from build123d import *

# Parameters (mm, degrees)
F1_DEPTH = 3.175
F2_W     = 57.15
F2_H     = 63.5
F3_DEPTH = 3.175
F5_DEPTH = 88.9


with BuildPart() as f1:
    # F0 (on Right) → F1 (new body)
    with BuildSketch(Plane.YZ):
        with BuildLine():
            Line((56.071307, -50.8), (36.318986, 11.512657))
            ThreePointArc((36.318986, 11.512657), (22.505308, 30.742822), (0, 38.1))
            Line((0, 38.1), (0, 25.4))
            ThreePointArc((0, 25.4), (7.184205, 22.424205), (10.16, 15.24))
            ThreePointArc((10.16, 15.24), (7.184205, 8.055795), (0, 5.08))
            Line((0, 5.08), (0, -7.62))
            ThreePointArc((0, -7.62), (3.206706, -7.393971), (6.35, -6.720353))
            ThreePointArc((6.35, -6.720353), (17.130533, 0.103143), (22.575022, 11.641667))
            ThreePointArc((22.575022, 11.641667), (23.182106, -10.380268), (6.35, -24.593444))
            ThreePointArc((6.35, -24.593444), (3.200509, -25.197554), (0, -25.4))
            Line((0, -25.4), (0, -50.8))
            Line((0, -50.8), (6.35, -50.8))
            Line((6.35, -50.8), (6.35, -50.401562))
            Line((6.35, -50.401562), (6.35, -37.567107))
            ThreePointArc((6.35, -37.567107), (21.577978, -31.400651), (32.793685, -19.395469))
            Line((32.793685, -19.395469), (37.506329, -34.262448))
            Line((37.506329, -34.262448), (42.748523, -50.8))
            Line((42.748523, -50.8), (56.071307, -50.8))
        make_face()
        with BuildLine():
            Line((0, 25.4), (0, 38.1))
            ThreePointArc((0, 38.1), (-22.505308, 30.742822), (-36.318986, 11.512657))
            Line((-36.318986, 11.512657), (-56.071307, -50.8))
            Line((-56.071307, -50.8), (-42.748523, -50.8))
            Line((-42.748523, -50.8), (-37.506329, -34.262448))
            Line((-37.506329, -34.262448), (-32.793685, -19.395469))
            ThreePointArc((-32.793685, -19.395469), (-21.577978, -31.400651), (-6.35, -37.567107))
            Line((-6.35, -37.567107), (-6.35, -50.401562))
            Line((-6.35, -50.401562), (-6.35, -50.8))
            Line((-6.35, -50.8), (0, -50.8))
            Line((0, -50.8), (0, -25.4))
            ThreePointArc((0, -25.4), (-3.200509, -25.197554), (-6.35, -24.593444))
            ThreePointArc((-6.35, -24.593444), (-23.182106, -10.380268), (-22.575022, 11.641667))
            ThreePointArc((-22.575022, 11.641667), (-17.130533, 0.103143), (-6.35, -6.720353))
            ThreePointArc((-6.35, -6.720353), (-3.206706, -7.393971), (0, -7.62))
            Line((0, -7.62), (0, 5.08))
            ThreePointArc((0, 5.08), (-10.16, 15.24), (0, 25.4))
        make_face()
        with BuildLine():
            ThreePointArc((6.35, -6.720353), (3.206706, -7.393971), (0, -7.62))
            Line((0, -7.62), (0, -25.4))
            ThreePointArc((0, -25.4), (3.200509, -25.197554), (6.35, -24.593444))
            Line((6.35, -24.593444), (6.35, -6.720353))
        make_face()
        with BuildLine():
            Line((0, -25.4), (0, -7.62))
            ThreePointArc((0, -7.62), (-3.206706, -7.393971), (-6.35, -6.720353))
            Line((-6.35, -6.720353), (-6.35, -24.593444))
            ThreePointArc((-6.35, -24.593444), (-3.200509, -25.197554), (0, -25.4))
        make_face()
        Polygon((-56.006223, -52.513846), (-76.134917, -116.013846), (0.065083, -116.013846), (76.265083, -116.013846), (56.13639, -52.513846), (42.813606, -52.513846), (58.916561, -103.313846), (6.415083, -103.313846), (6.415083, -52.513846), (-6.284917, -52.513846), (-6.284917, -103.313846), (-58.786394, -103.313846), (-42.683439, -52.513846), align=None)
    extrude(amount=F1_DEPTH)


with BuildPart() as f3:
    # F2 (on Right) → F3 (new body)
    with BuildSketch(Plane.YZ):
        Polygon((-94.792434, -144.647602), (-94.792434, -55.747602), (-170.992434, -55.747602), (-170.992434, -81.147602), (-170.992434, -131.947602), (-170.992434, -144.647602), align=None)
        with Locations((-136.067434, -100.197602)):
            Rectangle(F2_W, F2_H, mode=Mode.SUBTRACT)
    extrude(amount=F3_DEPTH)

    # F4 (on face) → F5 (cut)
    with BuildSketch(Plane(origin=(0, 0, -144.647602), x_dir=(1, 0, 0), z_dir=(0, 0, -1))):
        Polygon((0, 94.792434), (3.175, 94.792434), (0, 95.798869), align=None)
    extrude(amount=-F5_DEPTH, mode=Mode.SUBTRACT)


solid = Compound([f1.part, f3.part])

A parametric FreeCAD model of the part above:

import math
import FreeCAD as App
import Part
import Sketcher
from FreeCAD import Vector
Q = App.Units.Quantity


def add_polygon(sketch, points):
    """Adds a closed chain of lines whose ends are joined by coincident constraints."""
    first, n = sketch.GeometryCount, len(points)
    for a, b in zip(points, points[1:] + points[:1]):
        sketch.addGeometry(Part.LineSegment(App.Vector(*a, 0), App.Vector(*b, 0)), False)
    for i in range(n):
        sketch.addConstraint(Sketcher.Constraint("Coincident", first + i, 2, first + (i + 1) % n, 1))

doc = App.newDocument("Part")
body = doc.addObject("PartDesign::Body", "Body")
body.AllowCompound = True

# Sketch on YZ plane
sketch1 = body.newObject("Sketcher::SketchObject", "Sketch")
sketch1.AttachmentSupport = (doc.getObject("YZ_Plane"), [""])
sketch1.MapMode = "FlatFace"
sketch1.addGeometry(Part.LineSegment(Vector(56, -51, 0), Vector(36, 12, 0)), False)  # 0
sketch1.addGeometry(Part.ArcOfCircle(Part.Circle(Vector(0, 0, 0), Vector(0, 0, 1), 38), math.radians(18), math.radians(90)), False)  # 1
sketch1.addGeometry(Part.ArcOfCircle(Part.Circle(Vector(0, 0, 0), Vector(0, 0, 1), 38), math.radians(90), math.radians(162)), False)  # 2
sketch1.addGeometry(Part.LineSegment(Vector(-36, 12, 0), Vector(-56, -51, 0)), False)  # 3
sketch1.addGeometry(Part.LineSegment(Vector(-56, -51, 0), Vector(-43, -51, 0)), False)  # 4
sketch1.addGeometry(Part.LineSegment(Vector(-43, -51, 0), Vector(-38, -34, 0)), False)  # 5
sketch1.addGeometry(Part.LineSegment(Vector(-38, -34, 0), Vector(-33, -19, 0)), False)  # 6
sketch1.addGeometry(Part.ArcOfCircle(Part.Circle(Vector(0, 0, 0), Vector(0, 0, 1), 38), math.radians(-149), math.radians(-100)), False)  # 7
sketch1.addGeometry(Part.LineSegment(Vector(-6, -38, 0), Vector(-6, -51, 0)), False)  # 8
sketch1.addGeometry(Part.LineSegment(Vector(-6, -51, 0), Vector(6, -51, 0)), False)  # 9
sketch1.addGeometry(Part.LineSegment(Vector(6, -51, 0), Vector(6, -38, 0)), False)  # 10
sketch1.addGeometry(Part.ArcOfCircle(Part.Circle(Vector(0, 0, 0), Vector(0, 0, 1), 38), math.radians(-80), math.radians(-31)), False)  # 11
sketch1.addGeometry(Part.LineSegment(Vector(33, -19, 0), Vector(38, -34, 0)), False)  # 12
sketch1.addGeometry(Part.LineSegment(Vector(38, -34, 0), Vector(43, -51, 0)), False)  # 13
sketch1.addGeometry(Part.LineSegment(Vector(43, -51, 0), Vector(56, -51, 0)), False)  # 14
sketch1.addGeometry(Part.ArcOfCircle(Part.Circle(Vector(0, 15, 0), Vector(0, 0, 1), 10), math.radians(0), math.radians(90)), False)  # 15
sketch1.addGeometry(Part.ArcOfCircle(Part.Circle(Vector(0, 15, 0), Vector(0, 0, 1), 10), math.radians(-90), math.radians(0)), False)  # 16
sketch1.addGeometry(Part.ArcOfCircle(Part.Circle(Vector(0, 15, 0), Vector(0, 0, 1), 10), math.radians(90), math.radians(270)), False)  # 17
sketch1.addGeometry(Part.ArcOfCircle(Part.Circle(Vector(0, 15, 0), Vector(0, 0, 1), 23), math.radians(-74), math.radians(-9)), False)  # 18
sketch1.addGeometry(Part.ArcOfCircle(Part.Circle(Vector(0, 0, 0), Vector(0, 0, 1), 25), math.radians(-76), math.radians(27)), False)  # 19
sketch1.addGeometry(Part.LineSegment(Vector(6, -25, 0), Vector(6, -7, 0)), False)  # 20
sketch1.addGeometry(Part.ArcOfCircle(Part.Circle(Vector(0, 0, 0), Vector(0, 0, 1), 25), math.radians(153), math.radians(256)), False)  # 21
sketch1.addGeometry(Part.ArcOfCircle(Part.Circle(Vector(0, 15, 0), Vector(0, 0, 1), 23), math.radians(-171), math.radians(-106)), False)  # 22
sketch1.addGeometry(Part.LineSegment(Vector(-6, -7, 0), Vector(-6, -25, 0)), False)  # 23
add_polygon(sketch1, [(-56, -53), (-76, -116), (76, -116), (56, -53), (43, -53), (59, -103), (6, -103), (6, -53), (-6, -53), (-6, -103), (-59, -103), (-43, -53)])  # lines 24-35
sketch1.addConstraint([
    Sketcher.Constraint("Tangent", 0, 2, 1, 1),
    Sketcher.Constraint("Tangent", 1, 2, 2, 1),
    Sketcher.Constraint("Tangent", 2, 2, 3, 1),
    Sketcher.Constraint("Coincident", 3, 2, 4, 1),
    Sketcher.Constraint("Coincident", 4, 2, 5, 1),
    Sketcher.Constraint("Coincident", 5, 2, 6, 1),
    Sketcher.Constraint("Coincident", 6, 2, 7, 1),
    Sketcher.Constraint("Coincident", 7, 2, 8, 1),
    Sketcher.Constraint("Coincident", 8, 2, 9, 1),
    Sketcher.Constraint("Coincident", 9, 2, 10, 1),
    Sketcher.Constraint("Coincident", 10, 2, 11, 1),
    Sketcher.Constraint("Coincident", 11, 2, 12, 1),
    Sketcher.Constraint("Coincident", 12, 2, 13, 1),
    Sketcher.Constraint("Coincident", 13, 2, 14, 1),
    Sketcher.Constraint("Coincident", 14, 2, 0, 1),
    Sketcher.Constraint("Tangent", 15, 1, 16, 2),
    Sketcher.Constraint("Tangent", 16, 1, 17, 2),
    Sketcher.Constraint("Tangent", 17, 1, 15, 2),
    Sketcher.Constraint("Coincident", 18, 2, 19, 2),
    Sketcher.Constraint("Coincident", 19, 1, 20, 1),
    Sketcher.Constraint("Coincident", 20, 2, 18, 1),
    Sketcher.Constraint("Coincident", 21, 1, 22, 1),
    Sketcher.Constraint("Coincident", 22, 2, 23, 1),
    Sketcher.Constraint("Coincident", 23, 2, 21, 2),
    Sketcher.Constraint("Horizontal", 4),
    Sketcher.Constraint("Vertical", 8),
    Sketcher.Constraint("Horizontal", 9),
    Sketcher.Constraint("Vertical", 10),
    Sketcher.Constraint("Horizontal", 14),
    Sketcher.Constraint("Vertical", 20),
    Sketcher.Constraint("Vertical", 23),
    Sketcher.Constraint("Horizontal", 25),
    Sketcher.Constraint("Horizontal", 27),
    Sketcher.Constraint("Horizontal", 29),
    Sketcher.Constraint("Vertical", 30),
    Sketcher.Constraint("Horizontal", 31),
    Sketcher.Constraint("Vertical", 32),
    Sketcher.Constraint("Horizontal", 33),
    Sketcher.Constraint("Horizontal", 35),
    Sketcher.Constraint("Coincident", 1, 3, -1, 1),
    Sketcher.Constraint("Coincident", 7, 3, -1, 1),
    Sketcher.Constraint("Coincident", 11, 3, -1, 1),
    Sketcher.Constraint("Coincident", 19, 3, -1, 1),
    Sketcher.Constraint("Coincident", 21, 3, -1, 1),
    Sketcher.Constraint("Coincident", 18, 3, 15, 3),
    Sketcher.Constraint("Coincident", 22, 3, 15, 3),
    Sketcher.Constraint("Equal", 1, 2),
    Sketcher.Constraint("Equal", 2, 7),
    Sketcher.Constraint("Equal", 7, 11),
    Sketcher.Constraint("Equal", 19, 21),
    Sketcher.Constraint("Equal", 18, 22),
    Sketcher.Constraint("Symmetric", 5, 2, 12, 2, -2),
    Sketcher.Constraint("Symmetric", 4, 2, 13, 2, -2),
    Sketcher.Constraint("Symmetric", 20, 2, 22, 2, -2),
    Sketcher.Constraint("PointOnObject", 1, 2, -2),
    Sketcher.Constraint("PointOnObject", 16, 1, -2),
    Sketcher.Constraint("PointOnObject", 17, 1, -2),
    Sketcher.Constraint("Parallel", 3, 5),
    Sketcher.Constraint("Parallel", 5, 6),
    Sketcher.Constraint("Parallel", 0, 12),
    Sketcher.Constraint("Parallel", 12, 13),
    Sketcher.Constraint("Parallel", 6, 24),
    Sketcher.Constraint("Parallel", 13, 26),
    Sketcher.Constraint("Parallel", 26, 28),
    Sketcher.Constraint("Parallel", 24, 34),
    Sketcher.Constraint("Horizontal", 4, 2, 8, 2),
    Sketcher.Constraint("Horizontal", 7, 2, 10, 2),
    Sketcher.Constraint("Horizontal", 22, 3, 15, 1),
    Sketcher.Constraint("Horizontal", 27, 2, 30, 2),
    Sketcher.Constraint("Horizontal", 29, 2, 32, 2),
    Sketcher.Constraint("Horizontal", 31, 2, 34, 2),
    Sketcher.Constraint("Vertical", 10, 2, 19, 1),
    Sketcher.Constraint("Equal", 14, 27),
    Sketcher.Constraint("Equal", 9, 31),
    Sketcher.Constraint("Equal", 29, 33),
    Sketcher.Constraint("Equal", 27, 35),
    Sketcher.Constraint("Radius", 19, Q("1 in")),
    Sketcher.Constraint("Radius", 1, Q("1.5 in")),
    Sketcher.Constraint("Radius", 15, Q("0.4 in")),
    Sketcher.Constraint("Radius", 18, Q("0.9000001 in")),
    Sketcher.Constraint("DistanceX", 25, 1, 25, 2, Q("6 in")),
    Sketcher.Constraint("DistanceY", 30, 1, 30, 2, Q("2 in")),
    Sketcher.Constraint("DistanceX", 9, 1, 9, 2, Q("0.5 in")),
    Sketcher.Constraint("DistanceY", 3, 2, -1, 1, Q("2 in")),
    Sketcher.Constraint("DistanceY", -1, 1, 17, 1, Q("1 in")),
    Sketcher.Constraint("DistanceY", 25, 2, 28, 2, Q("0.5 in")),
    Sketcher.Constraint("DistanceX", 2, 2, 6, 2, 3.525301),
    Sketcher.Constraint("DistanceY", 26, 2, 12, 2, 18.251398),
    Sketcher.Constraint("DistanceX", 27, 2, 14, 2, 13.257701),
    Sketcher.Constraint("DistanceY", 30, 2, 19, 1, 27.920402),
    Sketcher.Constraint("DistanceX", 35, 2, 4, 2, 13.2577),
])
pad1 = body.newObject("PartDesign::Pad", "Pad")
pad1.Profile = sketch1
pad1.Length = Q("0.125 in")
body2 = doc.addObject("PartDesign::Body", "Body001")

# Sketch on YZ plane
sketch2 = body2.newObject("Sketcher::SketchObject", "Sketch001")
sketch2.AttachmentSupport = (doc.getObject("YZ_Plane001"), [""])
sketch2.MapMode = "FlatFace"
add_polygon(sketch2, [(-95, -145), (-95, -56), (-171, -56), (-171, -145)])  # lines 0-3
add_polygon(sketch2, [(-107, -132), (-165, -132), (-165, -68), (-107, -68)])  # lines 4-7
sketch2.addConstraint([
    Sketcher.Constraint("Vertical", 0),
    Sketcher.Constraint("Horizontal", 1),
    Sketcher.Constraint("Vertical", 2),
    Sketcher.Constraint("Horizontal", 3),
    Sketcher.Constraint("Horizontal", 4),
    Sketcher.Constraint("Vertical", 5),
    Sketcher.Constraint("Horizontal", 6),
    Sketcher.Constraint("Vertical", 7),
    Sketcher.Constraint("DistanceX", 1, 2, 1, 1, Q("3 in")),
    Sketcher.Constraint("DistanceY", 0, 1, 0, 2, Q("3.5 in")),
    Sketcher.Constraint("DistanceY", 5, 1, 5, 2, Q("2.5 in")),
    Sketcher.Constraint("DistanceY", 4, 2, 1, 2, Q("3 in")),
    Sketcher.Constraint("DistanceX", 4, 2, 4, 1, Q("2.25 in")),
    Sketcher.Constraint("DistanceX", 6, 2, 0, 2, Q("0.5 in")),
    Sketcher.Constraint("DistanceY", 2, 2, -1, 1, 144.647602),
    Sketcher.Constraint("DistanceX", 0, 2, -1, 1, 94.792434),
])
pad2 = body2.newObject("PartDesign::Pad", "Pad001")
pad2.Profile = sketch2
pad2.Length = Q("0.125 in")

# Sketch on XY plane
sketch3 = body2.newObject("Sketcher::SketchObject", "Sketch002")
sketch3.AttachmentSupport = (doc.getObject("XY_Plane001"), [""])
sketch3.MapMode = "FlatFace"
sketch3.AttachmentOffset = App.Placement(Vector(0, 0, -144.647602), App.Rotation())
add_polygon(sketch3, [(0, -94.8), (3.2, -94.8), (0, -95.8)])  # lines 0-2
sketch3.addConstraint([
    Sketcher.Constraint("Horizontal", 0),
    Sketcher.Constraint("Vertical", 2),
    Sketcher.Constraint("PointOnObject", 1, 2, -2),
    Sketcher.Constraint("DistanceX", 0, 1, 0, 2, Q("0.125 in")),
    Sketcher.Constraint("DistanceY", 2, 1, 2, 2, 1.006435),
    Sketcher.Constraint("DistanceY", 1, 2, -1, 1, 95.798869),
])
pocket1 = body2.newObject("PartDesign::Pocket", "Pocket")
pocket1.Profile = sketch3
pocket1.Length = Q("3.5 in")
pocket1.Reversed = True

doc.recompute()
